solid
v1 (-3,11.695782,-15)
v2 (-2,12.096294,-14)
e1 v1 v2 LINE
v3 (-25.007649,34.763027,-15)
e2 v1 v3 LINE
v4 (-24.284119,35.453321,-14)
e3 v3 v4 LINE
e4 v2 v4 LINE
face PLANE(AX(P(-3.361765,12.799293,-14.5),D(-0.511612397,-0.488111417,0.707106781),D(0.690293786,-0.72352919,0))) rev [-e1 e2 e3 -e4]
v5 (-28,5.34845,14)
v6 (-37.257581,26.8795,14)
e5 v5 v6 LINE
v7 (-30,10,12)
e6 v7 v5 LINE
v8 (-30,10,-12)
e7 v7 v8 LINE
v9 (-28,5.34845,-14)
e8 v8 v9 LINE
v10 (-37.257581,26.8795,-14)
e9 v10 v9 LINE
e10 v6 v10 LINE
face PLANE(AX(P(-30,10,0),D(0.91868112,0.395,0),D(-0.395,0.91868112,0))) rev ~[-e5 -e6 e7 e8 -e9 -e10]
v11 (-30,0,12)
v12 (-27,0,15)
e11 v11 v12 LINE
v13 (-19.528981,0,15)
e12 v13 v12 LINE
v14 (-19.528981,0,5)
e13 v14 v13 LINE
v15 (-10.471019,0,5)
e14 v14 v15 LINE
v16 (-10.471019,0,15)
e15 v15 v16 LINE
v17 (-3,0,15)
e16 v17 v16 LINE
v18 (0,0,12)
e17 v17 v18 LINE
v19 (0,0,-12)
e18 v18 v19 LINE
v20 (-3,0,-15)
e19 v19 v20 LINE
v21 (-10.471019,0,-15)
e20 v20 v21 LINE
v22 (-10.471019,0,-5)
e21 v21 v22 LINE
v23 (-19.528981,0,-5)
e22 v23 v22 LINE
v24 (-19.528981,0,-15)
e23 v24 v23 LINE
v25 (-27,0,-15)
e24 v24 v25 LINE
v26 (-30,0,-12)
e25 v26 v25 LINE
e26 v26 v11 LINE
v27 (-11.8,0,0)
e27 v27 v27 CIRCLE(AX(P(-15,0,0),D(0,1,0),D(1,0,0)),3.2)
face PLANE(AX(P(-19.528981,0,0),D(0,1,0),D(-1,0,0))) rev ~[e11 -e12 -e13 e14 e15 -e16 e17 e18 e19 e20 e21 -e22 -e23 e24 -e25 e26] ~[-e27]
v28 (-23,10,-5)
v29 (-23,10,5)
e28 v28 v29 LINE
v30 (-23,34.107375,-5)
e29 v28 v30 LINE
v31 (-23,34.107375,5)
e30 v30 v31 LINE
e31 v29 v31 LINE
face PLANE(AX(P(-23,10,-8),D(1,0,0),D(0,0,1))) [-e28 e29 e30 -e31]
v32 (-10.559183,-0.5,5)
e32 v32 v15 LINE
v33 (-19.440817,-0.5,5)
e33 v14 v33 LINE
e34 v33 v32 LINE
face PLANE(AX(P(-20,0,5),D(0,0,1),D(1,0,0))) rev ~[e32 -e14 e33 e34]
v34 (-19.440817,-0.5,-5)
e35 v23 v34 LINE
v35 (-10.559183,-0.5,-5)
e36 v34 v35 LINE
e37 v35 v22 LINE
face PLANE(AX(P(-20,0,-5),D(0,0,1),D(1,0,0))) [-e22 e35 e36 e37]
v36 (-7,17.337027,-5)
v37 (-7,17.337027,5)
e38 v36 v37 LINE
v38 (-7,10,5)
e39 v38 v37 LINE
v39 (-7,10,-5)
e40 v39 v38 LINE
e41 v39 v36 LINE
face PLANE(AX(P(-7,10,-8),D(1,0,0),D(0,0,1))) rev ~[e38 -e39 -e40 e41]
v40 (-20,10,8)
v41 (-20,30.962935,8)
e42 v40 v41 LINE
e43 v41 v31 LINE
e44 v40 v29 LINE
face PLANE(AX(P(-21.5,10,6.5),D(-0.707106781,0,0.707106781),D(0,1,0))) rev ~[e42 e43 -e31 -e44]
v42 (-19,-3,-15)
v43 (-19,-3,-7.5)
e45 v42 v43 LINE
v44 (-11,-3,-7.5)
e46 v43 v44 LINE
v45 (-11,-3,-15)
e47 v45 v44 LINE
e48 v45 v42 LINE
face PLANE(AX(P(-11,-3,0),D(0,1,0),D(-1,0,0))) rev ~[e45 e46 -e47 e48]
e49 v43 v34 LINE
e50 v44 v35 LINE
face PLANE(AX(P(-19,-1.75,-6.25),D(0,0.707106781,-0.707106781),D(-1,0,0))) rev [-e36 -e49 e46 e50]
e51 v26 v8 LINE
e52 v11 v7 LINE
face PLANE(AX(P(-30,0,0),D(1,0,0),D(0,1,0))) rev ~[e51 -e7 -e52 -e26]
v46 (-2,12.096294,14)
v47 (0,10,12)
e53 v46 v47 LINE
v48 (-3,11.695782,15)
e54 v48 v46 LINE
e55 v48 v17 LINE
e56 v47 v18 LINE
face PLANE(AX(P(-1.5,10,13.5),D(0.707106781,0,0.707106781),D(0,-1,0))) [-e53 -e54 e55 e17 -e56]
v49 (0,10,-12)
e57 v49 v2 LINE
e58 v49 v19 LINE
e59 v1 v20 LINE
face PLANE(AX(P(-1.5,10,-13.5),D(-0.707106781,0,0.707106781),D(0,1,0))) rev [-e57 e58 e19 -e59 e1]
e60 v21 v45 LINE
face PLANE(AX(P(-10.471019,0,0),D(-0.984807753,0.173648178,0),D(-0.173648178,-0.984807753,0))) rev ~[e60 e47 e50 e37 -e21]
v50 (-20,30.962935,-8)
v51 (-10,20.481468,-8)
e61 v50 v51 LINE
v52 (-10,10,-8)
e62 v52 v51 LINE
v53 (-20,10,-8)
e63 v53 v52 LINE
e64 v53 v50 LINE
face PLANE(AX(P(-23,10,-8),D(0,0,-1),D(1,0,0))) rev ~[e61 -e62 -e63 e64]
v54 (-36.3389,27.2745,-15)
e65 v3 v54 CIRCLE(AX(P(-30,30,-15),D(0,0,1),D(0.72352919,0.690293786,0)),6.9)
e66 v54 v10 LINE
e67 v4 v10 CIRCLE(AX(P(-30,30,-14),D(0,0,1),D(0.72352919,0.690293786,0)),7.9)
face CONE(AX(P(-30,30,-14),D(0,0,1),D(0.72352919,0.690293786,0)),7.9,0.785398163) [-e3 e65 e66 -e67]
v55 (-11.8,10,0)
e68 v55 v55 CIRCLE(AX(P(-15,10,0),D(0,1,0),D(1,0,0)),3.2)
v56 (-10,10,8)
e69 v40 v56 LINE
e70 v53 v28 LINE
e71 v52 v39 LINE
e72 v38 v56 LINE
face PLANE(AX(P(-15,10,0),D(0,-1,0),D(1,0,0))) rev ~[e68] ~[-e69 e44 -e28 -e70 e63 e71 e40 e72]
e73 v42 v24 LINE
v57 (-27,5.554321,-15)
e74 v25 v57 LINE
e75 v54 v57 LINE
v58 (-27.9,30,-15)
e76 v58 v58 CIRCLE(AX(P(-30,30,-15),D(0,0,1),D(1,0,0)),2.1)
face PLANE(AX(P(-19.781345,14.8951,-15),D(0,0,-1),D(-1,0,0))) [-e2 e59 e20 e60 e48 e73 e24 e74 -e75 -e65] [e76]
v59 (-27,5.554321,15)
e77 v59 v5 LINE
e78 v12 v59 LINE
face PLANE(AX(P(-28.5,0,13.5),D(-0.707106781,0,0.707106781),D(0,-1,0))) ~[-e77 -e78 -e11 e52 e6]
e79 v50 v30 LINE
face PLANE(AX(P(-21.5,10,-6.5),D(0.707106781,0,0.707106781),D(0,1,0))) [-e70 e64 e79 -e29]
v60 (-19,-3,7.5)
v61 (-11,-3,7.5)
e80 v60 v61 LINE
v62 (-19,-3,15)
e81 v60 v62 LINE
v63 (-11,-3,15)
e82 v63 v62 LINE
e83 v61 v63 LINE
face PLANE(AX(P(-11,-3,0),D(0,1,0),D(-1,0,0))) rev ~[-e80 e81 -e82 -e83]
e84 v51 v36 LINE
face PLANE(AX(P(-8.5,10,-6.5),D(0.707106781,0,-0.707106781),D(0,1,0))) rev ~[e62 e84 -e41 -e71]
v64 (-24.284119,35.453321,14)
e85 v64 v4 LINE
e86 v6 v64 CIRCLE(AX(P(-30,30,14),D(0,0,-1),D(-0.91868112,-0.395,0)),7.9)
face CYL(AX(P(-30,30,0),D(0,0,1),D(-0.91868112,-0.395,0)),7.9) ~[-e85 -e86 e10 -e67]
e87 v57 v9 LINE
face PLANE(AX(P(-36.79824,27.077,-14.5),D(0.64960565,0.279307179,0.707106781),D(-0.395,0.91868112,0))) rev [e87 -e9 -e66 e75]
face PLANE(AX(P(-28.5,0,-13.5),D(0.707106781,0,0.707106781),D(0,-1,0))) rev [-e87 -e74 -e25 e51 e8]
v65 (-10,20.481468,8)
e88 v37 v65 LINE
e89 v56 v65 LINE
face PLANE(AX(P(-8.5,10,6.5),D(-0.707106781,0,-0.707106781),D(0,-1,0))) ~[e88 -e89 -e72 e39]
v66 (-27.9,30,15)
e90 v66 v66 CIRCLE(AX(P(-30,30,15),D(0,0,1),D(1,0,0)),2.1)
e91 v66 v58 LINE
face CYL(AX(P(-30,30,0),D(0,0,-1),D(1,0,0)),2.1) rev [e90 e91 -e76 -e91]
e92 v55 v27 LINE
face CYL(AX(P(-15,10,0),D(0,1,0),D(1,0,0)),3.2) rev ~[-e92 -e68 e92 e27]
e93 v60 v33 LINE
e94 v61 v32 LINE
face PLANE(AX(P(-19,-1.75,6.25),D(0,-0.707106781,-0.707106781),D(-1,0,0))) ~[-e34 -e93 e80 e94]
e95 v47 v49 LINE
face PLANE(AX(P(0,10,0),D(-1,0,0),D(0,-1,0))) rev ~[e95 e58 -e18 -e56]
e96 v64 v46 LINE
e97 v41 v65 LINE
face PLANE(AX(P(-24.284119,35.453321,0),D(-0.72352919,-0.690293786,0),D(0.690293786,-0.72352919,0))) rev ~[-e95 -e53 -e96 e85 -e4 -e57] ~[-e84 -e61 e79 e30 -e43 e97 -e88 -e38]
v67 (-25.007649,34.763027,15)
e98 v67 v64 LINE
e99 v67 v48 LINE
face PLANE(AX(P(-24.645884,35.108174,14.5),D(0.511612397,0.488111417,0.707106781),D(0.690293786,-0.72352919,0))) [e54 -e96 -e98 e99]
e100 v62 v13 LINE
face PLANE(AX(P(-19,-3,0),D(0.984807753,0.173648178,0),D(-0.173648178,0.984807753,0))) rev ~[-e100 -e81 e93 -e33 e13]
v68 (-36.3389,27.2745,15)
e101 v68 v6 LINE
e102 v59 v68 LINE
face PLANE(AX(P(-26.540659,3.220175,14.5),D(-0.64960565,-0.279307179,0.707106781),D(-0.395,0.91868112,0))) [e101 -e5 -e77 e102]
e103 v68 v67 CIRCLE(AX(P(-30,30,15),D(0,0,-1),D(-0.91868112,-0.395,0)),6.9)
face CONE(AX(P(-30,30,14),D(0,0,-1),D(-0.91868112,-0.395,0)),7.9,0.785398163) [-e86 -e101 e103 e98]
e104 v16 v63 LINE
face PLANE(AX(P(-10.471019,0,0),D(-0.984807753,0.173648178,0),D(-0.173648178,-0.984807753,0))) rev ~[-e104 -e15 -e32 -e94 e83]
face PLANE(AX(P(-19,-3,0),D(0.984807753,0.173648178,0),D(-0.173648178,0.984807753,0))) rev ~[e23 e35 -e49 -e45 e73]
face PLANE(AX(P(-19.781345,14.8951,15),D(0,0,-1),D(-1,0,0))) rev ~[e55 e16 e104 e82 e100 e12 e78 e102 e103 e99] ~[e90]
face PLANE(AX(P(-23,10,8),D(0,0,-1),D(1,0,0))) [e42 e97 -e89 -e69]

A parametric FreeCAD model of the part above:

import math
import FreeCAD as App
import Part
import Sketcher
from FreeCAD import Vector
Q = App.Units.Quantity


def edges_at(feature, points):
    """Names of the edges that pass closest to the given points."""
    edges = feature.Shape.Edges
    near = lambda p: min(range(len(edges)), key=lambda i: edges[i].distToShape(Part.Vertex(*p))[0])
    return sorted({f"Edge{near(p) + 1}" for p in points})

doc = App.newDocument("Part")
body = doc.addObject("PartDesign::Body", "Body")

sketch1 = body.newObject("Sketcher::SketchObject", "Sketch")
sketch1.AttachmentSupport = (doc.getObject("XY_Plane"), [""])
sketch1.MapMode = "FlatFace"
sketch1.addGeometry(Part.LineSegment(Vector(-30, 10, 0), Vector(-30, 0, 0)), False)
sketch1.addGeometry(Part.LineSegment(Vector(-30, 0, 0), Vector(-19.5, 0, 0)), False)
sketch1.addGeometry(Part.LineSegment(Vector(-19.5, 0, 0), Vector(-19, -3, 0)), False)
sketch1.addGeometry(Part.LineSegment(Vector(-19, -3, 0), Vector(-11, -3, 0)), False)
sketch1.addGeometry(Part.LineSegment(Vector(-11, -3, 0), Vector(-10.5, 0, 0)), False)
sketch1.addGeometry(Part.LineSegment(Vector(-10.5, 0, 0), Vector(0, 0, 0)), False)
sketch1.addGeometry(Part.LineSegment(Vector(0, 0, 0), Vector(0, 10, 0)), False)
sketch1.addGeometry(Part.LineSegment(Vector(0, 10, 0), Vector(-24.3, 35.5, 0)), False)
sketch1.addGeometry(Part.ArcOfCircle(Part.Circle(Vector(-30, 30, 0), Vector(0, 0, 1), 7.9), math.radians(44), math.radians(203)), False)
sketch1.addGeometry(Part.LineSegment(Vector(-37.3, 26.9, 0), Vector(-30, 10, 0)), False)
sketch1.addGeometry(Part.Circle(Vector(-30, 30, 0), Vector(0, 0, 1), 2.1), False)
sketch1.addConstraint(Sketcher.Constraint("Coincident", 0, 2, 1, 1))
sketch1.addConstraint(Sketcher.Constraint("Coincident", 1, 2, 2, 1))
sketch1.addConstraint(Sketcher.Constraint("Coincident", 2, 2, 3, 1))
sketch1.addConstraint(Sketcher.Constraint("Coincident", 3, 2, 4, 1))
sketch1.addConstraint(Sketcher.Constraint("Coincident", 4, 2, 5, 1))
sketch1.addConstraint(Sketcher.Constraint("Coincident", 5, 2, 6, 1))
sketch1.addConstraint(Sketcher.Constraint("Coincident", 6, 2, 7, 1))
sketch1.addConstraint(Sketcher.Constraint("Tangent", 7, 2, 8, 1))
sketch1.addConstraint(Sketcher.Constraint("Tangent", 8, 2, 9, 1))
sketch1.addConstraint(Sketcher.Constraint("Coincident", 9, 2, 0, 1))
sketch1.addConstraint(Sketcher.Constraint("Vertical", 0))
sketch1.addConstraint(Sketcher.Constraint("Horizontal", 1))
sketch1.addConstraint(Sketcher.Constraint("Horizontal", 3))
sketch1.addConstraint(Sketcher.Constraint("Horizontal", 5))
sketch1.addConstraint(Sketcher.Constraint("Vertical", 6))
sketch1.addConstraint(Sketcher.Constraint("Coincident", 5, 2, -1, 1))
sketch1.addConstraint(Sketcher.Constraint("Coincident", 10, 3, 8, 3))
sketch1.addConstraint(Sketcher.Constraint("PointOnObject", 0, 2, -1))
sketch1.addConstraint(Sketcher.Constraint("Horizontal", 6, 2, 9, 2))
sketch1.addConstraint(Sketcher.Constraint("Vertical", 10, 3, 0, 2))
sketch1.addConstraint(Sketcher.Constraint("Equal", 1, 5))
sketch1.addConstraint(Sketcher.Constraint("Equal", 2, 4))
sketch1.addConstraint(Sketcher.Constraint("Diameter", 10, 4.2))
sketch1.addConstraint(Sketcher.Constraint("Radius", 8, 7.9))
sketch1.addConstraint(Sketcher.Constraint("DistanceX", 3, 1, 3, 2, 8.0))
sketch1.addConstraint(Sketcher.Constraint("DistanceY", 0, 2, 0, 1, 10.0))
sketch1.addConstraint(Sketcher.Constraint("Angle", 2, Q("-80 deg")))
sketch1.addConstraint(Sketcher.Constraint("DistanceX", 8, 3, -1, 1, 30.0))
sketch1.addConstraint(Sketcher.Constraint("DistanceY", -1, 1, 8, 3, 30.0))
sketch1.addConstraint(Sketcher.Constraint("DistanceY", 2, 2, -1, 1, 3.0))
pad1 = body.newObject("PartDesign::Pad", "Pad")
pad1.Profile = sketch1
pad1.Length = 30
pad1.Midplane = True
doc.recompute()

chamfer = body.newObject("PartDesign::Chamfer", "Chamfer")
chamfer.Base = (pad1, edges_at(pad1, [
    (-30, 5, -15),
    (0, 5, -15),
    (-30, 5, 15),
    (0, 5, 15),
]))
chamfer.Size = 3

sketch2 = body.newObject("Sketcher::SketchObject", "Sketch001")
sketch2.AttachmentSupport = (doc.getObject("XZ_Plane"), [""])
sketch2.MapMode = "FlatFace"
sketch2.AttachmentOffset = App.Placement(Vector(0, 0, -10), App.Rotation())
sketch2.addGeometry(Part.LineSegment(Vector(-23, 8, 0), Vector(-23, -8, 0)), False)
sketch2.addGeometry(Part.LineSegment(Vector(-23, -8, 0), Vector(-7, -8, 0)), False)
sketch2.addGeometry(Part.LineSegment(Vector(-7, -8, 0), Vector(-7, 8, 0)), False)
sketch2.addGeometry(Part.LineSegment(Vector(-7, 8, 0), Vector(-23, 8, 0)), False)
sketch2.addConstraint(Sketcher.Constraint("Coincident", 0, 2, 1, 1))
sketch2.addConstraint(Sketcher.Constraint("Coincident", 1, 2, 2, 1))
sketch2.addConstraint(Sketcher.Constraint("Coincident", 2, 2, 3, 1))
sketch2.addConstraint(Sketcher.Constraint("Coincident", 3, 2, 0, 1))
sketch2.addConstraint(Sketcher.Constraint("Vertical", 0))
sketch2.addConstraint(Sketcher.Constraint("Horizontal", 1))
sketch2.addConstraint(Sketcher.Constraint("Vertical", 2))
sketch2.addConstraint(Sketcher.Constraint("Horizontal", 3))
sketch2.addConstraint(Sketcher.Constraint("Equal", 3, 0))
sketch2.addConstraint(Sketcher.Constraint("DistanceX", 1, 1, 1, 2, 16.0))
sketch2.addConstraint(Sketcher.Constraint("DistanceX", 0, 2, -1, 1, 23.0))
sketch2.addConstraint(Sketcher.Constraint("DistanceY", 0, 2, -1, 1, 8.0))
pocket1 = body.newObject("PartDesign::Pocket", "Pocket")
pocket1.Profile = sketch2
pocket1.Type = "ThroughAll"
doc.recompute()

chamfer2 = body.newObject("PartDesign::Chamfer", "Chamfer001")
chamfer2.Base = (pocket1, edges_at(pocket1, [
    (-23, 22.054, -8),
    (-23, 22.054, 8),
    (-7, 13.669, 8),
    (-7, 13.669, -8),
]))
chamfer2.Size = 3

sketch3 = body.newObject("Sketcher::SketchObject", "Sketch002")
sketch3.AttachmentSupport = (doc.getObject("XZ_Plane"), [""])
sketch3.MapMode = "FlatFace"
sketch3.AttachmentOffset = App.Placement(Vector(0, 0, -10), App.Rotation())
sketch3.addGeometry(Part.Circle(Vector(-15, 0, 0), Vector(0, 0, 1), 3.2), False)
sketch3.addConstraint(Sketcher.Constraint("PointOnObject", 0, 3, -1))
sketch3.addConstraint(Sketcher.Constraint("Diameter", 0, 6.4))
sketch3.addConstraint(Sketcher.Constraint("DistanceX", 0, 3, -1, 1, 15.0))
pocket2 = body.newObject("PartDesign::Pocket", "Pocket001")
pocket2.Profile = sketch3
pocket2.Type = "ThroughAll"
pocket2.Reversed = True

sketch4 = body.newObject("Sketcher::SketchObject", "Sketch003")
sketch4.AttachmentSupport = (doc.getObject("XZ_Plane"), [""])
sketch4.MapMode = "FlatFace"
sketch4.addGeometry(Part.LineSegment(Vector(-20, 5, 0), Vector(-20, -5, 0)), False)
sketch4.addGeometry(Part.LineSegment(Vector(-20, -5, 0), Vector(-10, -5, 0)), False)
sketch4.addGeometry(Part.LineSegment(Vector(-10, -5, 0), Vector(-10, 5, 0)), False)
sketch4.addGeometry(Part.LineSegment(Vector(-10, 5, 0), Vector(-20, 5, 0)), False)
sketch4.addConstraint(Sketcher.Constraint("Coincident", 0, 2, 1, 1))
sketch4.addConstraint(Sketcher.Constraint("Coincident", 1, 2, 2, 1))
sketch4.addConstraint(Sketcher.Constraint("Coincident", 2, 2, 3, 1))
sketch4.addConstraint(Sketcher.Constraint("Coincident", 3, 2, 0, 1))
sketch4.addConstraint(Sketcher.Constraint("Vertical", 0))
sketch4.addConstraint(Sketcher.Constraint("Horizontal", 1))
sketch4.addConstraint(Sketcher.Constraint("Vertical", 2))
sketch4.addConstraint(Sketcher.Constraint("Horizontal", 3))
sketch4.addConstraint(Sketcher.Constraint("Equal", 3, 0))
sketch4.addConstraint(Sketcher.Constraint("DistanceX", 1, 1, 1, 2, 10.0))
sketch4.addConstraint(Sketcher.Constraint("DistanceX", 0, 2, -1, 1, 20.0))
sketch4.addConstraint(Sketcher.Constraint("DistanceY", 0, 2, -1, 1, 5.0))
pocket3 = body.newObject("PartDesign::Pocket", "Pocket002")
pocket3.Profile = sketch4
pocket3.Type = "ThroughAll"
pocket3.Reversed = True
doc.recompute()

chamfer3 = body.newObject("PartDesign::Chamfer", "Chamfer002")
chamfer3.Base = (pocket3, edges_at(pocket3, [(-15, -3, -5), (-15, -3, 5)]))
chamfer3.Size = 2.5
doc.recompute()

chamfer4 = body.newObject("PartDesign::Chamfer", "Chamfer003")
chamfer4.Base = (chamfer3, edges_at(chamfer3, [
    (-32.129, 14.951, -15),
    (-34.356, 36.591, -15),
    (-34.356, 36.591, 15),
    (-32.129, 14.951, 15),
    (-13.642, 24.299, -15),
    (-13.642, 24.299, 15),
]))
chamfer4.Size = 1

doc.recompute()
